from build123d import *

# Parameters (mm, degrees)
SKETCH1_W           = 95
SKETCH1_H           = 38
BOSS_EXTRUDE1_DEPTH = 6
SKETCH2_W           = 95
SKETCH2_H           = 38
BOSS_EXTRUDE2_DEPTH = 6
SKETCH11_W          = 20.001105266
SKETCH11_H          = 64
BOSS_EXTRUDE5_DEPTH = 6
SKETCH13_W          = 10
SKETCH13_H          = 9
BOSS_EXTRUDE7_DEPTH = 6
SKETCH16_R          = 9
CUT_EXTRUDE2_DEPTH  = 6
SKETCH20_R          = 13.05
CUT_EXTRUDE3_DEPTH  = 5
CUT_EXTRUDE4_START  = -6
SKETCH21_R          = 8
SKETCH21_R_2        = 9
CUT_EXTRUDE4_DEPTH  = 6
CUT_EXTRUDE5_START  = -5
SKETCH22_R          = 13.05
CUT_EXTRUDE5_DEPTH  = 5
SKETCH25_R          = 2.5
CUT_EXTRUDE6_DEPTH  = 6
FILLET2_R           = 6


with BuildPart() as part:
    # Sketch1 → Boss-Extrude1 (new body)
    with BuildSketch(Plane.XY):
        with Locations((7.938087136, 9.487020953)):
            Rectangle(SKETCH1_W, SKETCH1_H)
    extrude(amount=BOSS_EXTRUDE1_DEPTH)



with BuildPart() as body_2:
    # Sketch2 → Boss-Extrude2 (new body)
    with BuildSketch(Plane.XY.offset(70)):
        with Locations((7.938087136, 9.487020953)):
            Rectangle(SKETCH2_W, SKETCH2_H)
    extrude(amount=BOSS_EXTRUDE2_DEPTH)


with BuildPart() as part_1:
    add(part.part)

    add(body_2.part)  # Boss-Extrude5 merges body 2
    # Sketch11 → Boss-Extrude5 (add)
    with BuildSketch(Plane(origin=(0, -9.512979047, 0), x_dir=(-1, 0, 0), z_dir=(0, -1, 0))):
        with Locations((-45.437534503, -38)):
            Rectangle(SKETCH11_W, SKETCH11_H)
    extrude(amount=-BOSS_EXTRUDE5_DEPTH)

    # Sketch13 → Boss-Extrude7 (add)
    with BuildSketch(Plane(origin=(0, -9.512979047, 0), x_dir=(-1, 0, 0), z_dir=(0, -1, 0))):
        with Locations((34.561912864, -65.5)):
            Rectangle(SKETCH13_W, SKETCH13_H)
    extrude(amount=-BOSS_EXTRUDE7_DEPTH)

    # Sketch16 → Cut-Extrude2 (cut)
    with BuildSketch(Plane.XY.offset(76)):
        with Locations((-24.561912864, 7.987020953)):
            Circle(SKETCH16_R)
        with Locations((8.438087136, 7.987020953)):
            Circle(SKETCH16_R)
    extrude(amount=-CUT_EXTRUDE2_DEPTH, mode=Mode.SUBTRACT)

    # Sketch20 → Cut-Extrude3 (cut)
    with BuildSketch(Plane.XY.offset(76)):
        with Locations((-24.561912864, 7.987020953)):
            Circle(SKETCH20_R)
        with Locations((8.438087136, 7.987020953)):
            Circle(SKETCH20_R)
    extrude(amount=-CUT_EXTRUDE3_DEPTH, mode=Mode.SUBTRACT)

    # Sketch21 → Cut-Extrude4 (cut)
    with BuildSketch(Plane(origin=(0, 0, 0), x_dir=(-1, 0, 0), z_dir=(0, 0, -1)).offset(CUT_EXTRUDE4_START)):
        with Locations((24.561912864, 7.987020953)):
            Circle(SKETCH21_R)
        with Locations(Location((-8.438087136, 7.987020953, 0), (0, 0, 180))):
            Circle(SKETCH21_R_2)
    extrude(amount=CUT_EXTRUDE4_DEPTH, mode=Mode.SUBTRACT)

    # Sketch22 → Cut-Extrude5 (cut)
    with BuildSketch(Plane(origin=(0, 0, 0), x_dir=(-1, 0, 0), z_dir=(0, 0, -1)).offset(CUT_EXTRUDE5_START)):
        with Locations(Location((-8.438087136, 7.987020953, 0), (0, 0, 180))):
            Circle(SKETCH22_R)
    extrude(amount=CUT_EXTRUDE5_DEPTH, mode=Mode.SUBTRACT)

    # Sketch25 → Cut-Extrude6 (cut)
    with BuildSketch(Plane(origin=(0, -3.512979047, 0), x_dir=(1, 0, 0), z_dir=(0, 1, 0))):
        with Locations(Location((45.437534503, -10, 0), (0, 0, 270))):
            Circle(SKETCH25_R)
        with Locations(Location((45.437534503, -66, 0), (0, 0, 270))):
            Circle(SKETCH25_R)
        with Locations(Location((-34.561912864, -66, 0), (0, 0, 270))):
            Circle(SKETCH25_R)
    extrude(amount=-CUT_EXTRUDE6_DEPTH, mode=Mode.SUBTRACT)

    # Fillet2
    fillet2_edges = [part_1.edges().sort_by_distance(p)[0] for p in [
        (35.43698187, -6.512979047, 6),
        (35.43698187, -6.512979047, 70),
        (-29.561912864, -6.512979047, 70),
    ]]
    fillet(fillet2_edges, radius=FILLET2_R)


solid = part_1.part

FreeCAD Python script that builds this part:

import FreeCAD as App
import Part
import Sketcher
from FreeCAD import Vector


def edges_at(feature, points):
    """Names of the edges that pass closest to the given points."""
    edges = feature.Shape.Edges
    near = lambda p: min(range(len(edges)), key=lambda i: edges[i].distToShape(Part.Vertex(*p))[0])
    return sorted({f"Edge{near(p) + 1}" for p in points})


def add_polygon(sketch, points):
    """Adds a closed chain of lines whose ends are joined by coincident constraints."""
    first, n = sketch.GeometryCount, len(points)
    for a, b in zip(points, points[1:] + points[:1]):
        sketch.addGeometry(Part.LineSegment(App.Vector(*a, 0), App.Vector(*b, 0)), False)
    for i in range(n):
        sketch.addConstraint(Sketcher.Constraint("Coincident", first + i, 2, first + (i + 1) % n, 1))

doc = App.newDocument("Part")
params = doc.addObject("Spreadsheet::Sheet", "Params")
for row, (alias, value) in enumerate([
    ("sketch1_width", "95 mm"),
    ("sketch1_height", "38 mm"),
    ("pad1_length", "6 mm"),
    ("sketch2_width", "95 mm"),
    ("sketch2_height", "38 mm"),
    ("pad2_length", "6 mm"),
    ("sketch3_height", "64 mm"),
    ("pad3_length", "6 mm"),
    ("sketch4_width", "10 mm"),
    ("sketch4_height", "9 mm"),
    ("pad4_length", "6 mm"),
    ("sketch5_diameter", "18 mm"),
    ("pocket1_length", "6 mm"),
    ("sketch6_diameter", "26.1 mm"),
    ("pocket2_length", "5 mm"),
    ("sketch7_diameter", "16 mm"),
    ("sketch7_diameter2", "18 mm"),
    ("pocket3_length", "6 mm"),
    ("sketch8_diameter", "26.1 mm"),
    ("pocket4_length", "5 mm"),
    ("sketch9_diameter", "5 mm"),
    ("pocket5_length", "6 mm"),
    ("fillet_radius", "6 mm"),
], start=1):
    params.set(f"A{row}", alias)
    params.set(f"B{row}", "=" + value)
    params.setAlias(f"B{row}", alias)

body = doc.addObject("PartDesign::Body", "Body")

sketch1 = body.newObject("Sketcher::SketchObject", "Sketch")
sketch1.AttachmentSupport = (doc.getObject("XY_Plane"), [""])
sketch1.MapMode = "FlatFace"
add_polygon(sketch1, [(-39.561913, 28.487021), (-39.561913, -9.512979), (55.438087, -9.512979), (55.438087, 28.487021)])
sketch1.addConstraint([
    Sketcher.Constraint("Vertical", 0),
    Sketcher.Constraint("Horizontal", 1),
    Sketcher.Constraint("Vertical", 2),
    Sketcher.Constraint("Horizontal", 3),
    Sketcher.Constraint("DistanceX", 1, 1, 1, 2, 95.0),
    Sketcher.Constraint("DistanceY", 0, 2, 0, 1, 38.0),
    Sketcher.Constraint("DistanceY", 0, 2, -1, 1, 9.512979),
    Sketcher.Constraint("DistanceX", 0, 2, -1, 1, 39.561913),
])
sketch1.setExpression("Constraints[8]", "Params.sketch1_width")
sketch1.setExpression("Constraints[9]", "Params.sketch1_height")
pad1 = body.newObject("PartDesign::Pad", "Pad")
pad1.Profile = sketch1
pad1.setExpression("Length", "Params.pad1_length")
body2 = doc.addObject("PartDesign::Body", "Body001")

sketch2 = body2.newObject("Sketcher::SketchObject", "Sketch001")
sketch2.AttachmentSupport = (doc.getObject("XY_Plane001"), [""])
sketch2.MapMode = "FlatFace"
sketch2.AttachmentOffset = App.Placement(Vector(0, 0, 70), App.Rotation())
add_polygon(sketch2, [(-39.561913, 28.487021), (-39.561913, -9.512979), (55.438087, -9.512979), (55.438087, 28.487021)])
sketch2.addConstraint([
    Sketcher.Constraint("Vertical", 0),
    Sketcher.Constraint("Horizontal", 1),
    Sketcher.Constraint("Vertical", 2),
    Sketcher.Constraint("Horizontal", 3),
    Sketcher.Constraint("DistanceX", 1, 1, 1, 2, 95.0),
    Sketcher.Constraint("DistanceY", 0, 2, 0, 1, 38.0),
    Sketcher.Constraint("DistanceY", 0, 2, -1, 1, 9.512979),
    Sketcher.Constraint("DistanceX", 0, 2, -1, 1, 39.561913),
])
sketch2.setExpression("Constraints[8]", "Params.sketch2_width")
sketch2.setExpression("Constraints[9]", "Params.sketch2_height")
pad2 = body2.newObject("PartDesign::Pad", "Pad001")
pad2.Profile = sketch2
pad2.setExpression("Length", "Params.pad2_length")
body.AllowCompound = True
doc.recompute()

boolean = body.newObject("PartDesign::Boolean", "Boolean")
boolean.Type = "Fuse"
boolean.addObjects([body2])

sketch3 = body.newObject("Sketcher::SketchObject", "Sketch002")
sketch3.AttachmentSupport = (doc.getObject("XZ_Plane"), [""])
sketch3.MapMode = "FlatFace"
sketch3.AttachmentOffset = App.Placement(Vector(0, 0, 9.512979), App.Rotation())
add_polygon(sketch3, [(55.438087, 6), (55.438087, 70), (35.436982, 70), (35.436982, 6)])
sketch3.addConstraint([
    Sketcher.Constraint("Vertical", 0),
    Sketcher.Constraint("Horizontal", 1),
    Sketcher.Constraint("Vertical", 2),
    Sketcher.Constraint("Horizontal", 3),
    Sketcher.Constraint("DistanceY", 0, 1, 0, 2, 64.0),
    Sketcher.Constraint("DistanceY", -1, 1, 0, 2, 70.0),
    Sketcher.Constraint("DistanceX", 1, 2, 1, 1, 20.001105),
    Sketcher.Constraint("DistanceX", -1, 1, 1, 2, 35.436982),
])
sketch3.setExpression("Constraints[8]", "Params.sketch3_height")
pad3 = body.newObject("PartDesign::Pad", "Pad002")
pad3.Profile = sketch3
pad3.setExpression("Length", "Params.pad3_length")
pad3.Reversed = True

sketch4 = body.newObject("Sketcher::SketchObject", "Sketch003")
sketch4.AttachmentSupport = (doc.getObject("XZ_Plane"), [""])
sketch4.MapMode = "FlatFace"
sketch4.AttachmentOffset = App.Placement(Vector(0, 0, 9.512979), App.Rotation())
add_polygon(sketch4, [(-29.561913, 61), (-29.561913, 70), (-39.561913, 70), (-39.561913, 61)])
sketch4.addConstraint([
    Sketcher.Constraint("Vertical", 0),
    Sketcher.Constraint("Horizontal", 1),
    Sketcher.Constraint("Vertical", 2),
    Sketcher.Constraint("Horizontal", 3),
    Sketcher.Constraint("DistanceX", 1, 2, 1, 1, 10.0),
    Sketcher.Constraint("DistanceY", 0, 1, 0, 2, 9.0),
    Sketcher.Constraint("DistanceY", -1, 1, 0, 2, 70.0),
    Sketcher.Constraint("DistanceX", 0, 2, -1, 1, 29.561913),
])
sketch4.setExpression("Constraints[8]", "Params.sketch4_width")
sketch4.setExpression("Constraints[9]", "Params.sketch4_height")
pad4 = body.newObject("PartDesign::Pad", "Pad003")
pad4.Profile = sketch4
pad4.setExpression("Length", "Params.pad4_length")
pad4.Reversed = True

sketch5 = body.newObject("Sketcher::SketchObject", "Sketch004")
sketch5.AttachmentSupport = (doc.getObject("XY_Plane"), [""])
sketch5.MapMode = "FlatFace"
sketch5.AttachmentOffset = App.Placement(Vector(0, 0, 76), App.Rotation())
sketch5.addGeometry([
    Part.Circle(Vector(-24.561913, 7.987021, 0), Vector(0, 0, 1), 9),
    Part.Circle(Vector(8.438087, 7.987021, 0), Vector(0, 0, 1), 9),
], False)
sketch5.addConstraint([
    Sketcher.Constraint("Equal", 0, 1),
    Sketcher.Constraint("Horizontal", 0, 3, 1, 3),
    Sketcher.Constraint("Diameter", 0, 18.0),
    Sketcher.Constraint("DistanceX", 0, 3, 1, 3, 33.0),
    Sketcher.Constraint("DistanceY", -1, 1, 0, 3, 7.987021),
    Sketcher.Constraint("DistanceX", 0, 3, -1, 1, 24.561913),
])
sketch5.setExpression("Constraints[2]", "Params.sketch5_diameter")
pocket1 = body.newObject("PartDesign::Pocket", "Pocket")
pocket1.Profile = sketch5
pocket1.setExpression("Length", "Params.pocket1_length")

sketch6 = body.newObject("Sketcher::SketchObject", "Sketch005")
sketch6.AttachmentSupport = (doc.getObject("XY_Plane"), [""])
sketch6.MapMode = "FlatFace"
sketch6.AttachmentOffset = App.Placement(Vector(0, 0, 76), App.Rotation())
sketch6.addGeometry([
    Part.Circle(Vector(-24.561913, 7.987021, 0), Vector(0, 0, 1), 13.05),
    Part.Circle(Vector(8.438087, 7.987021, 0), Vector(0, 0, 1), 13.05),
], False)
sketch6.addConstraint([
    Sketcher.Constraint("Equal", 0, 1),
    Sketcher.Constraint("Horizontal", 0, 3, 1, 3),
    Sketcher.Constraint("Diameter", 0, 26.1),
    Sketcher.Constraint("DistanceX", 0, 3, 1, 3, 33.0),
    Sketcher.Constraint("DistanceY", -1, 1, 0, 3, 7.987021),
    Sketcher.Constraint("DistanceX", 0, 3, -1, 1, 24.561913),
])
sketch6.setExpression("Constraints[2]", "Params.sketch6_diameter")
pocket2 = body.newObject("PartDesign::Pocket", "Pocket001")
pocket2.Profile = sketch6
pocket2.setExpression("Length", "Params.pocket2_length")

sketch7 = body.newObject("Sketcher::SketchObject", "Sketch006")
sketch7.AttachmentSupport = (doc.getObject("XY_Plane"), [""])
sketch7.MapMode = "FlatFace"
sketch7.AttachmentOffset = App.Placement(Vector(0, 0, 6), App.Rotation())
sketch7.addGeometry([
    Part.Circle(Vector(-24.561913, 7.987021, 0), Vector(0, 0, 1), 8),
    Part.Circle(Vector(8.438087, 7.987021, 0), Vector(0, 0, 1), 9),
], False)
sketch7.addConstraint([
    Sketcher.Constraint("Horizontal", 0, 3, 1, 3),
    Sketcher.Constraint("Diameter", 0, 16.0),
    Sketcher.Constraint("Diameter", 1, 18.0),
    Sketcher.Constraint("DistanceX", 0, 3, 1, 3, 33.0),
    Sketcher.Constraint("DistanceY", -1, 1, 0, 3, 7.987021),
    Sketcher.Constraint("DistanceX", 0, 3, -1, 1, 24.561913),
])
sketch7.setExpression("Constraints[1]", "Params.sketch7_diameter")
sketch7.setExpression("Constraints[2]", "Params.sketch7_diameter2")
pocket3 = body.newObject("PartDesign::Pocket", "Pocket002")
pocket3.Profile = sketch7
pocket3.setExpression("Length", "Params.pocket3_length")

sketch8 = body.newObject("Sketcher::SketchObject", "Sketch007")
sketch8.AttachmentSupport = (doc.getObject("XY_Plane"), [""])
sketch8.MapMode = "FlatFace"
sketch8.AttachmentOffset = App.Placement(Vector(0, 0, 5), App.Rotation())
sketch8.addGeometry(Part.Circle(Vector(8.438087, 7.987021, 0), Vector(0, 0, 1), 13.05), False)
sketch8.addConstraint([
    Sketcher.Constraint("Diameter", 0, 26.1),
    Sketcher.Constraint("DistanceY", -1, 1, 0, 3, 7.987021),
    Sketcher.Constraint("DistanceX", -1, 1, 0, 3, 8.438087),
])
sketch8.setExpression("Constraints[0]", "Params.sketch8_diameter")
pocket4 = body.newObject("PartDesign::Pocket", "Pocket003")
pocket4.Profile = sketch8
pocket4.setExpression("Length", "Params.pocket4_length")

sketch9 = body.newObject("Sketcher::SketchObject", "Sketch008")
sketch9.AttachmentSupport = (doc.getObject("XZ_Plane"), [""])
sketch9.MapMode = "FlatFace"
sketch9.AttachmentOffset = App.Placement(Vector(0, 0, 3.512979), App.Rotation())
sketch9.addGeometry([
    Part.Circle(Vector(45.437535, 10, 0), Vector(0, 0, 1), 2.5),
    Part.Circle(Vector(45.437535, 66, 0), Vector(0, 0, 1), 2.5),
    Part.Circle(Vector(-34.561913, 66, 0), Vector(0, 0, 1), 2.5),
], False)
sketch9.addConstraint([
    Sketcher.Constraint("Equal", 0, 1),
    Sketcher.Constraint("Equal", 1, 2),
    Sketcher.Constraint("Horizontal", 1, 3, 2, 3),
    Sketcher.Constraint("Vertical", 0, 3, 1, 3),
    Sketcher.Constraint("Diameter", 0, 5.0),
    Sketcher.Constraint("DistanceY", -1, 1, 0, 3, 10.0),
    Sketcher.Constraint("DistanceY", -1, 1, 1, 3, 66.0),
    Sketcher.Constraint("DistanceX", -1, 1, 0, 3, 45.437535),
    Sketcher.Constraint("DistanceX", 2, 3, -1, 1, 34.561913),
])
sketch9.setExpression("Constraints[4]", "Params.sketch9_diameter")
pocket5 = body.newObject("PartDesign::Pocket", "Pocket004")
pocket5.Profile = sketch9
pocket5.setExpression("Length", "Params.pocket5_length")
pocket5.Reversed = True
doc.recompute()

fillet = body.newObject("PartDesign::Fillet", "Fillet")
fillet.Base = (pocket5, edges_at(pocket5, [(35.437, -6.513, 6), (35.437, -6.513, 70), (-29.562, -6.513, 70)]))
fillet.setExpression("Radius", "Params.fillet_radius")

doc.recompute()
